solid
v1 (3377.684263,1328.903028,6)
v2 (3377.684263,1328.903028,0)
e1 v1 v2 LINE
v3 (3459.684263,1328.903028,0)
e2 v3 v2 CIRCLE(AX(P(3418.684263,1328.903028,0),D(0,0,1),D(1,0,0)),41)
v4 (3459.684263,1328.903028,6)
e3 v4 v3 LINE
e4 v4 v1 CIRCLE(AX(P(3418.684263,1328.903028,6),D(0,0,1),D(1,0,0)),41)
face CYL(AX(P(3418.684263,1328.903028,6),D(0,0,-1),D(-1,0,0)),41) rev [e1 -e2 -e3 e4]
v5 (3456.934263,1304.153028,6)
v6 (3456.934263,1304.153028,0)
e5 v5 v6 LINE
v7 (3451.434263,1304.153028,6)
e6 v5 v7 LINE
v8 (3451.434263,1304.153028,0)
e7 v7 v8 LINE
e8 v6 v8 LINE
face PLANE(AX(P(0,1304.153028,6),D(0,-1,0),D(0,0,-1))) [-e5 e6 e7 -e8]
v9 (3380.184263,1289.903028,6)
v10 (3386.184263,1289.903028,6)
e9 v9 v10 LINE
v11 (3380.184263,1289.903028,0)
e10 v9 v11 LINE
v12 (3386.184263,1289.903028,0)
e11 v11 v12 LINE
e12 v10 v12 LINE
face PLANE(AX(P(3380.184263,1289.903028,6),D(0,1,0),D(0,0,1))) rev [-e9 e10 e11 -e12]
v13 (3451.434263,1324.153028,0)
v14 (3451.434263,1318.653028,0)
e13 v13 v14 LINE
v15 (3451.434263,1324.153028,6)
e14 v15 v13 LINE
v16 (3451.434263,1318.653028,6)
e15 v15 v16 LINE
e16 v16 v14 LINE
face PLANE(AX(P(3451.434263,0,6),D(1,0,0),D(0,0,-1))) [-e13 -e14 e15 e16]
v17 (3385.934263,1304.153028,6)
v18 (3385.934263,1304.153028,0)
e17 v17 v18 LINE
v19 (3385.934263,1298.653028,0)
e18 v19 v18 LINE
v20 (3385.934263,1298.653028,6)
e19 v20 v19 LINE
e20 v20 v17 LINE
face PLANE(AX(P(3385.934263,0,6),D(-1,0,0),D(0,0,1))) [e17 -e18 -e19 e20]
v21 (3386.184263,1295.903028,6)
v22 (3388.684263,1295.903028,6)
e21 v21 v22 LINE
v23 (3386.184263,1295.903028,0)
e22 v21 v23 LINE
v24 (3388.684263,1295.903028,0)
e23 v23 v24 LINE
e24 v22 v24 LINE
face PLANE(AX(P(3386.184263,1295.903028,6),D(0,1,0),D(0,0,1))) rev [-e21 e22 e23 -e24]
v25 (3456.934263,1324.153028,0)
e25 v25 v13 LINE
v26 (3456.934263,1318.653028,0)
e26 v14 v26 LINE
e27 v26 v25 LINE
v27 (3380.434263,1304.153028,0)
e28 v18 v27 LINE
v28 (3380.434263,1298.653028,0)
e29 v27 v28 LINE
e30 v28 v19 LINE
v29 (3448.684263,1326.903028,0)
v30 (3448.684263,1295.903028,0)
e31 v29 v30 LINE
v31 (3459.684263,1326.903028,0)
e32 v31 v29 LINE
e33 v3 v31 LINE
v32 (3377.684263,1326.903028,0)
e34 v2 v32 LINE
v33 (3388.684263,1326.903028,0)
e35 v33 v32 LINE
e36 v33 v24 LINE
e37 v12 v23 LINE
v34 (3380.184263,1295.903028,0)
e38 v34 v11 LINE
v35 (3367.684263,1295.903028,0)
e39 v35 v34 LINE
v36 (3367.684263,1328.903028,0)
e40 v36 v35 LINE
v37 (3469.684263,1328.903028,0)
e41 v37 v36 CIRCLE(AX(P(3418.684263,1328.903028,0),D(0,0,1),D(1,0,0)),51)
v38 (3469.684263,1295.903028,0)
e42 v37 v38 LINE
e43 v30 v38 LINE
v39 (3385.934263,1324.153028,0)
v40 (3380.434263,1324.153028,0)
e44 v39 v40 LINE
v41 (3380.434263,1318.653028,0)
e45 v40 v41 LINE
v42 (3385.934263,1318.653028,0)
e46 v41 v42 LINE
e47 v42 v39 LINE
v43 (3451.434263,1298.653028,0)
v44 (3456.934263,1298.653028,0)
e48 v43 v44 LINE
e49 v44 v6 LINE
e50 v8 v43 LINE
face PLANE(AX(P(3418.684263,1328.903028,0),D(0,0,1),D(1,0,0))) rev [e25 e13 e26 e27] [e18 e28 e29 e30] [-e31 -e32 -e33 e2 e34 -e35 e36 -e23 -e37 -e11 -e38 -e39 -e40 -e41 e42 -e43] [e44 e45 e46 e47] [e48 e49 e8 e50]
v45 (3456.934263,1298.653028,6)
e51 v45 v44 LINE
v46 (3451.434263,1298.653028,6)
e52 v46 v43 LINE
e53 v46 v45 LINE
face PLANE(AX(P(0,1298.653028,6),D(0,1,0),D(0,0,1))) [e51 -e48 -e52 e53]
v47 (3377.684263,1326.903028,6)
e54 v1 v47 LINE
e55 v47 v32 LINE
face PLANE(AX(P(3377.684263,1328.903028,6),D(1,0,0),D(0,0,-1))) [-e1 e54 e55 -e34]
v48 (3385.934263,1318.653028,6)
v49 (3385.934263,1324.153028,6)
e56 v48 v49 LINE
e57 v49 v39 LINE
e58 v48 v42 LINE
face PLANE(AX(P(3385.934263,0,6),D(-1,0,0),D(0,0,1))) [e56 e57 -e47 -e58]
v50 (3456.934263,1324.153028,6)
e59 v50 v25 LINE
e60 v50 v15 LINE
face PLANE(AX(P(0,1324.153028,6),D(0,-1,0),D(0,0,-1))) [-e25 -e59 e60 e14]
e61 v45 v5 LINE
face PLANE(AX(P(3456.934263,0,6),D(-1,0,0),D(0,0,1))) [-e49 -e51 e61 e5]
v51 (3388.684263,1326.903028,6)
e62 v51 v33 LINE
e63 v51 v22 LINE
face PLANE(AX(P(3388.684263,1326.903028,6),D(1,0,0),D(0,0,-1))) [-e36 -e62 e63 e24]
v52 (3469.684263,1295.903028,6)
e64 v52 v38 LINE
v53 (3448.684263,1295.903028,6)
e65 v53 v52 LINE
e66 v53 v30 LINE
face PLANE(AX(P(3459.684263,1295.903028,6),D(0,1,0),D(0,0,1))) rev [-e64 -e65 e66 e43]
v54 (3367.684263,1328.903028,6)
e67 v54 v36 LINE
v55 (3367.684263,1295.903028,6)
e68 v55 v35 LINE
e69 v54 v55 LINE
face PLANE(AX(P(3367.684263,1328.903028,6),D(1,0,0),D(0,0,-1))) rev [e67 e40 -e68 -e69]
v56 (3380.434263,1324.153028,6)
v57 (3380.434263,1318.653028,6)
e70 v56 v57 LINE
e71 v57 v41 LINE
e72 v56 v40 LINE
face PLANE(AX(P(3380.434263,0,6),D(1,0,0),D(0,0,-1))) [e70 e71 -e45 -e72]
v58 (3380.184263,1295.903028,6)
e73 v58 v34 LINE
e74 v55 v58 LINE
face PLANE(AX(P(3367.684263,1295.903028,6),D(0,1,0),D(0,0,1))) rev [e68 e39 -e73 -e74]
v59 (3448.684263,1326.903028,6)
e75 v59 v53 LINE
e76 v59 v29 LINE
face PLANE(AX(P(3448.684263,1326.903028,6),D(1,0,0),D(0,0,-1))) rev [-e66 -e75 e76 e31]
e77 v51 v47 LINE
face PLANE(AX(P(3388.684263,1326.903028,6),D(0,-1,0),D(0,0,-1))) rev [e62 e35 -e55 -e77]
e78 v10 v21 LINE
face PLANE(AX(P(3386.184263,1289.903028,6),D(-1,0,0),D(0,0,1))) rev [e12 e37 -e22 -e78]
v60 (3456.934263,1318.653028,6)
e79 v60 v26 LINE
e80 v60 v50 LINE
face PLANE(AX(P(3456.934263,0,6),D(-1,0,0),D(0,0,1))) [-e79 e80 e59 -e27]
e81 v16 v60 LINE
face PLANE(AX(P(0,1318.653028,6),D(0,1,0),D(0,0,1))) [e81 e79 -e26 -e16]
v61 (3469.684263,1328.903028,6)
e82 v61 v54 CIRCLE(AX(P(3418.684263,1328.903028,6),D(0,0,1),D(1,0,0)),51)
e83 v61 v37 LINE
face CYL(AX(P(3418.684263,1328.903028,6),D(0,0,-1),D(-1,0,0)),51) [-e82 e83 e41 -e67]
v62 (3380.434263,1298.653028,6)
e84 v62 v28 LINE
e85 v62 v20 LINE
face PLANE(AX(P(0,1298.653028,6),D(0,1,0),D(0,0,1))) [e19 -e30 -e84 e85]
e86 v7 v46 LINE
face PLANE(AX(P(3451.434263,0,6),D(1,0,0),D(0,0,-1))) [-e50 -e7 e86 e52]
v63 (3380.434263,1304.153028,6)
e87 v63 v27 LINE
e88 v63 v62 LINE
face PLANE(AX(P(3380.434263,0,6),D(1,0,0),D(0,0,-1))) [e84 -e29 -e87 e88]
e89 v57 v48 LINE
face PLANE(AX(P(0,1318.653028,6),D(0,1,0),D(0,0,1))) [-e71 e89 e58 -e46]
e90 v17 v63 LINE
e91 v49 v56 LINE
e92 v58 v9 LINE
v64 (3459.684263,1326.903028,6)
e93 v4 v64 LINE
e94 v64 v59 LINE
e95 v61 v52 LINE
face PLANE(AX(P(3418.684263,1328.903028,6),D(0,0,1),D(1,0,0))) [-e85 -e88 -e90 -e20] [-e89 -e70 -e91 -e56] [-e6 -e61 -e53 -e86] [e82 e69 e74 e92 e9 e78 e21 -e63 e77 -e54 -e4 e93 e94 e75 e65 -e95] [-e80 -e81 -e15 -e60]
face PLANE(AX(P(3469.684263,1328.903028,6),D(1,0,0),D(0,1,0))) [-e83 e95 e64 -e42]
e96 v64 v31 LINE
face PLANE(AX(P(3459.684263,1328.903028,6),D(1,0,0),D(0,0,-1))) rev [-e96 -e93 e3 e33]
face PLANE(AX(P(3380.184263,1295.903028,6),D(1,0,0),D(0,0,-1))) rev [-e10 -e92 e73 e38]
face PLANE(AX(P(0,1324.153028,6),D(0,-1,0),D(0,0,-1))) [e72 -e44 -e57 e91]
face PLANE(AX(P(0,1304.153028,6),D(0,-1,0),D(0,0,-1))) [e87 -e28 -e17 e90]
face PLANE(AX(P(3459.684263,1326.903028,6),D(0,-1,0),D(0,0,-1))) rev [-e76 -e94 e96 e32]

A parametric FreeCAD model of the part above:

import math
import FreeCAD as App
import Part
import Sketcher

V = App.Vector
Q = App.Units.Quantity


def add_polygon(sketch, points):
    """Adds a closed chain of lines whose ends are joined by coincident constraints."""
    first, n = sketch.GeometryCount, len(points)
    for a, b in zip(points, points[1:] + points[:1]):
        sketch.addGeometry(Part.LineSegment(App.Vector(*a, 0), App.Vector(*b, 0)), False)
    for i in range(n):
        sketch.addConstraint(Sketcher.Constraint("Coincident", first + i, 2, first + (i + 1) % n, 1))

doc = App.newDocument("Part")
body = doc.addObject("PartDesign::Body", "Body")

# Sketch on XY plane
sketch1 = body.newObject("Sketcher::SketchObject", "Sketch")
sketch1.AttachmentSupport = (doc.getObject("XY_Plane"), [""])
sketch1.MapMode = "FlatFace"
sketch1.addGeometry(Part.LineSegment(V(3367.7, 1328.9, 0), V(3367.7, 1295.9, 0)), False)  # 0
sketch1.addGeometry(Part.LineSegment(V(3367.7, 1295.9, 0), V(3380.2, 1295.9, 0)), False)  # 1
sketch1.addGeometry(Part.LineSegment(V(3380.2, 1295.9, 0), V(3380.2, 1289.9, 0)), False)  # 2
sketch1.addGeometry(Part.LineSegment(V(3380.2, 1289.9, 0), V(3386.2, 1289.9, 0)), False)  # 3
sketch1.addGeometry(Part.LineSegment(V(3386.2, 1289.9, 0), V(3386.2, 1295.9, 0)), False)  # 4
sketch1.addGeometry(Part.LineSegment(V(3386.2, 1295.9, 0), V(3388.7, 1295.9, 0)), False)  # 5
sketch1.addGeometry(Part.LineSegment(V(3388.7, 1295.9, 0), V(3388.7, 1326.9, 0)), False)  # 6
sketch1.addGeometry(Part.LineSegment(V(3388.7, 1326.9, 0), V(3377.7, 1326.9, 0)), False)  # 7
sketch1.addGeometry(Part.LineSegment(V(3377.7, 1326.9, 0), V(3377.7, 1328.9, 0)), False)  # 8
sketch1.addGeometry(Part.ArcOfCircle(Part.Circle(V(3418.7, 1328.9, 0), V(0, 0, 1), 41), math.radians(0), math.radians(180)), False)  # 9
sketch1.addGeometry(Part.LineSegment(V(3459.7, 1328.9, 0), V(3459.7, 1326.9, 0)), False)  # 10
sketch1.addGeometry(Part.LineSegment(V(3459.7, 1326.9, 0), V(3448.7, 1326.9, 0)), False)  # 11
sketch1.addGeometry(Part.LineSegment(V(3448.7, 1326.9, 0), V(3448.7, 1295.9, 0)), False)  # 12
sketch1.addGeometry(Part.LineSegment(V(3448.7, 1295.9, 0), V(3469.7, 1295.9, 0)), False)  # 13
sketch1.addGeometry(Part.LineSegment(V(3469.7, 1295.9, 0), V(3469.7, 1328.9, 0)), False)  # 14
sketch1.addGeometry(Part.ArcOfCircle(Part.Circle(V(3418.7, 1328.9, 0), V(0, 0, 1), 51), math.radians(0), math.radians(180)), False)  # 15
add_polygon(sketch1, [(3385.9, 1298.7), (3380.4, 1298.7), (3380.4, 1304.2), (3385.9, 1304.2)])  # lines 16-19
add_polygon(sketch1, [(3456.9, 1298.7), (3451.4, 1298.7), (3451.4, 1304.2), (3456.9, 1304.2)])  # lines 20-23
add_polygon(sketch1, [(3385.9, 1318.7), (3380.4, 1318.7), (3380.4, 1324.2), (3385.9, 1324.2)])  # lines 24-27
add_polygon(sketch1, [(3456.9, 1318.7), (3451.4, 1318.7), (3451.4, 1324.2), (3456.9, 1324.2)])  # lines 28-31
sketch1.addConstraint([
    Sketcher.Constraint("Coincident", 0, 2, 1, 1),
    Sketcher.Constraint("Coincident", 1, 2, 2, 1),
    Sketcher.Constraint("Coincident", 2, 2, 3, 1),
    Sketcher.Constraint("Coincident", 3, 2, 4, 1),
    Sketcher.Constraint("Coincident", 4, 2, 5, 1),
    Sketcher.Constraint("Coincident", 5, 2, 6, 1),
    Sketcher.Constraint("Coincident", 6, 2, 7, 1),
    Sketcher.Constraint("Coincident", 7, 2, 8, 1),
    Sketcher.Constraint("Tangent", 8, 2, 9, 2),
    Sketcher.Constraint("Tangent", 9, 1, 10, 1),
    Sketcher.Constraint("Coincident", 10, 2, 11, 1),
    Sketcher.Constraint("Coincident", 11, 2, 12, 1),
    Sketcher.Constraint("Coincident", 12, 2, 13, 1),
    Sketcher.Constraint("Coincident", 13, 2, 14, 1),
    Sketcher.Constraint("Tangent", 14, 2, 15, 1),
    Sketcher.Constraint("Tangent", 15, 2, 0, 1),
    Sketcher.Constraint("Vertical", 0),
    Sketcher.Constraint("Horizontal", 1),
    Sketcher.Constraint("Vertical", 2),
    Sketcher.Constraint("Horizontal", 3),
    Sketcher.Constraint("Vertical", 4),
    Sketcher.Constraint("Horizontal", 5),
    Sketcher.Constraint("Vertical", 6),
    Sketcher.Constraint("Horizontal", 7),
    Sketcher.Constraint("Vertical", 8),
    Sketcher.Constraint("Vertical", 10),
    Sketcher.Constraint("Horizontal", 11),
    Sketcher.Constraint("Vertical", 12),
    Sketcher.Constraint("Horizontal", 13),
    Sketcher.Constraint("Vertical", 14),
    Sketcher.Constraint("Horizontal", 16),
    Sketcher.Constraint("Vertical", 17),
    Sketcher.Constraint("Horizontal", 18),
    Sketcher.Constraint("Vertical", 19),
    Sketcher.Constraint("Horizontal", 20),
    Sketcher.Constraint("Vertical", 21),
    Sketcher.Constraint("Horizontal", 22),
    Sketcher.Constraint("Vertical", 23),
    Sketcher.Constraint("Horizontal", 24),
    Sketcher.Constraint("Vertical", 25),
    Sketcher.Constraint("Horizontal", 26),
    Sketcher.Constraint("Vertical", 27),
    Sketcher.Constraint("Horizontal", 28),
    Sketcher.Constraint("Vertical", 29),
    Sketcher.Constraint("Horizontal", 30),
    Sketcher.Constraint("Vertical", 31),
    Sketcher.Constraint("Coincident", 15, 3, 9, 3),
    Sketcher.Constraint("Horizontal", 1, 2, 4, 2),
    Sketcher.Constraint("Horizontal", 7, 2, 10, 2),
    Sketcher.Constraint("Horizontal", 5, 2, 12, 2),
    Sketcher.Constraint("Horizontal", 19, 2, 20, 2),
    Sketcher.Constraint("Horizontal", 18, 2, 21, 2),
    Sketcher.Constraint("Horizontal", 27, 2, 28, 2),
    Sketcher.Constraint("Horizontal", 26, 2, 29, 2),
    Sketcher.Constraint("Vertical", 17, 2, 24, 2),
    Sketcher.Constraint("Vertical", 19, 2, 26, 2),
    Sketcher.Constraint("Vertical", 21, 2, 28, 2),
    Sketcher.Constraint("Vertical", 23, 2, 30, 2),
    Sketcher.Constraint("Equal", 7, 11),
    Sketcher.Constraint("Equal", 18, 20),
    Sketcher.Constraint("Equal", 3, 2),
    Sketcher.Constraint("Equal", 30, 17),
    Sketcher.Constraint("Equal", 23, 25),
    Sketcher.Constraint("Radius", 9, Q("41 mm")),
    Sketcher.Constraint("Radius", 15, Q("51 mm")),
    Sketcher.Constraint("DistanceX", 3, 1, 3, 2, Q("6 mm")),
    Sketcher.Constraint("DistanceX", 7, 2, 7, 1, Q("11 mm")),
    Sketcher.Constraint("DistanceY", 0, 2, 0, 1, Q("33 mm")),
    Sketcher.Constraint("DistanceY", 6, 1, 6, 2, Q("31 mm")),
    Sketcher.Constraint("DistanceX", 1, 1, 1, 2, Q("12.5 mm")),
    Sketcher.Constraint("DistanceX", 16, 2, 16, 1, Q("5.5 mm")),
    Sketcher.Constraint("DistanceY", 17, 2, 24, 2, Q("14.5 mm")),
    Sketcher.Constraint("DistanceX", 1, 2, 16, 2, Q("0.25 mm")),
    Sketcher.Constraint("DistanceY", 1, 2, 16, 2, Q("2.75 mm")),
    Sketcher.Constraint("DistanceX", 12, 2, 20, 2, Q("2.75 mm")),
    Sketcher.Constraint("DistanceX", -1, 1, 9, 3, Q("3418.684263 mm")),
    Sketcher.Constraint("DistanceY", -1, 1, 9, 3, Q("1328.903028 mm")),
])
pad1 = body.newObject("PartDesign::Pad", "Pad")
pad1.Profile = sketch1
pad1.Length = 6

doc.recompute()
